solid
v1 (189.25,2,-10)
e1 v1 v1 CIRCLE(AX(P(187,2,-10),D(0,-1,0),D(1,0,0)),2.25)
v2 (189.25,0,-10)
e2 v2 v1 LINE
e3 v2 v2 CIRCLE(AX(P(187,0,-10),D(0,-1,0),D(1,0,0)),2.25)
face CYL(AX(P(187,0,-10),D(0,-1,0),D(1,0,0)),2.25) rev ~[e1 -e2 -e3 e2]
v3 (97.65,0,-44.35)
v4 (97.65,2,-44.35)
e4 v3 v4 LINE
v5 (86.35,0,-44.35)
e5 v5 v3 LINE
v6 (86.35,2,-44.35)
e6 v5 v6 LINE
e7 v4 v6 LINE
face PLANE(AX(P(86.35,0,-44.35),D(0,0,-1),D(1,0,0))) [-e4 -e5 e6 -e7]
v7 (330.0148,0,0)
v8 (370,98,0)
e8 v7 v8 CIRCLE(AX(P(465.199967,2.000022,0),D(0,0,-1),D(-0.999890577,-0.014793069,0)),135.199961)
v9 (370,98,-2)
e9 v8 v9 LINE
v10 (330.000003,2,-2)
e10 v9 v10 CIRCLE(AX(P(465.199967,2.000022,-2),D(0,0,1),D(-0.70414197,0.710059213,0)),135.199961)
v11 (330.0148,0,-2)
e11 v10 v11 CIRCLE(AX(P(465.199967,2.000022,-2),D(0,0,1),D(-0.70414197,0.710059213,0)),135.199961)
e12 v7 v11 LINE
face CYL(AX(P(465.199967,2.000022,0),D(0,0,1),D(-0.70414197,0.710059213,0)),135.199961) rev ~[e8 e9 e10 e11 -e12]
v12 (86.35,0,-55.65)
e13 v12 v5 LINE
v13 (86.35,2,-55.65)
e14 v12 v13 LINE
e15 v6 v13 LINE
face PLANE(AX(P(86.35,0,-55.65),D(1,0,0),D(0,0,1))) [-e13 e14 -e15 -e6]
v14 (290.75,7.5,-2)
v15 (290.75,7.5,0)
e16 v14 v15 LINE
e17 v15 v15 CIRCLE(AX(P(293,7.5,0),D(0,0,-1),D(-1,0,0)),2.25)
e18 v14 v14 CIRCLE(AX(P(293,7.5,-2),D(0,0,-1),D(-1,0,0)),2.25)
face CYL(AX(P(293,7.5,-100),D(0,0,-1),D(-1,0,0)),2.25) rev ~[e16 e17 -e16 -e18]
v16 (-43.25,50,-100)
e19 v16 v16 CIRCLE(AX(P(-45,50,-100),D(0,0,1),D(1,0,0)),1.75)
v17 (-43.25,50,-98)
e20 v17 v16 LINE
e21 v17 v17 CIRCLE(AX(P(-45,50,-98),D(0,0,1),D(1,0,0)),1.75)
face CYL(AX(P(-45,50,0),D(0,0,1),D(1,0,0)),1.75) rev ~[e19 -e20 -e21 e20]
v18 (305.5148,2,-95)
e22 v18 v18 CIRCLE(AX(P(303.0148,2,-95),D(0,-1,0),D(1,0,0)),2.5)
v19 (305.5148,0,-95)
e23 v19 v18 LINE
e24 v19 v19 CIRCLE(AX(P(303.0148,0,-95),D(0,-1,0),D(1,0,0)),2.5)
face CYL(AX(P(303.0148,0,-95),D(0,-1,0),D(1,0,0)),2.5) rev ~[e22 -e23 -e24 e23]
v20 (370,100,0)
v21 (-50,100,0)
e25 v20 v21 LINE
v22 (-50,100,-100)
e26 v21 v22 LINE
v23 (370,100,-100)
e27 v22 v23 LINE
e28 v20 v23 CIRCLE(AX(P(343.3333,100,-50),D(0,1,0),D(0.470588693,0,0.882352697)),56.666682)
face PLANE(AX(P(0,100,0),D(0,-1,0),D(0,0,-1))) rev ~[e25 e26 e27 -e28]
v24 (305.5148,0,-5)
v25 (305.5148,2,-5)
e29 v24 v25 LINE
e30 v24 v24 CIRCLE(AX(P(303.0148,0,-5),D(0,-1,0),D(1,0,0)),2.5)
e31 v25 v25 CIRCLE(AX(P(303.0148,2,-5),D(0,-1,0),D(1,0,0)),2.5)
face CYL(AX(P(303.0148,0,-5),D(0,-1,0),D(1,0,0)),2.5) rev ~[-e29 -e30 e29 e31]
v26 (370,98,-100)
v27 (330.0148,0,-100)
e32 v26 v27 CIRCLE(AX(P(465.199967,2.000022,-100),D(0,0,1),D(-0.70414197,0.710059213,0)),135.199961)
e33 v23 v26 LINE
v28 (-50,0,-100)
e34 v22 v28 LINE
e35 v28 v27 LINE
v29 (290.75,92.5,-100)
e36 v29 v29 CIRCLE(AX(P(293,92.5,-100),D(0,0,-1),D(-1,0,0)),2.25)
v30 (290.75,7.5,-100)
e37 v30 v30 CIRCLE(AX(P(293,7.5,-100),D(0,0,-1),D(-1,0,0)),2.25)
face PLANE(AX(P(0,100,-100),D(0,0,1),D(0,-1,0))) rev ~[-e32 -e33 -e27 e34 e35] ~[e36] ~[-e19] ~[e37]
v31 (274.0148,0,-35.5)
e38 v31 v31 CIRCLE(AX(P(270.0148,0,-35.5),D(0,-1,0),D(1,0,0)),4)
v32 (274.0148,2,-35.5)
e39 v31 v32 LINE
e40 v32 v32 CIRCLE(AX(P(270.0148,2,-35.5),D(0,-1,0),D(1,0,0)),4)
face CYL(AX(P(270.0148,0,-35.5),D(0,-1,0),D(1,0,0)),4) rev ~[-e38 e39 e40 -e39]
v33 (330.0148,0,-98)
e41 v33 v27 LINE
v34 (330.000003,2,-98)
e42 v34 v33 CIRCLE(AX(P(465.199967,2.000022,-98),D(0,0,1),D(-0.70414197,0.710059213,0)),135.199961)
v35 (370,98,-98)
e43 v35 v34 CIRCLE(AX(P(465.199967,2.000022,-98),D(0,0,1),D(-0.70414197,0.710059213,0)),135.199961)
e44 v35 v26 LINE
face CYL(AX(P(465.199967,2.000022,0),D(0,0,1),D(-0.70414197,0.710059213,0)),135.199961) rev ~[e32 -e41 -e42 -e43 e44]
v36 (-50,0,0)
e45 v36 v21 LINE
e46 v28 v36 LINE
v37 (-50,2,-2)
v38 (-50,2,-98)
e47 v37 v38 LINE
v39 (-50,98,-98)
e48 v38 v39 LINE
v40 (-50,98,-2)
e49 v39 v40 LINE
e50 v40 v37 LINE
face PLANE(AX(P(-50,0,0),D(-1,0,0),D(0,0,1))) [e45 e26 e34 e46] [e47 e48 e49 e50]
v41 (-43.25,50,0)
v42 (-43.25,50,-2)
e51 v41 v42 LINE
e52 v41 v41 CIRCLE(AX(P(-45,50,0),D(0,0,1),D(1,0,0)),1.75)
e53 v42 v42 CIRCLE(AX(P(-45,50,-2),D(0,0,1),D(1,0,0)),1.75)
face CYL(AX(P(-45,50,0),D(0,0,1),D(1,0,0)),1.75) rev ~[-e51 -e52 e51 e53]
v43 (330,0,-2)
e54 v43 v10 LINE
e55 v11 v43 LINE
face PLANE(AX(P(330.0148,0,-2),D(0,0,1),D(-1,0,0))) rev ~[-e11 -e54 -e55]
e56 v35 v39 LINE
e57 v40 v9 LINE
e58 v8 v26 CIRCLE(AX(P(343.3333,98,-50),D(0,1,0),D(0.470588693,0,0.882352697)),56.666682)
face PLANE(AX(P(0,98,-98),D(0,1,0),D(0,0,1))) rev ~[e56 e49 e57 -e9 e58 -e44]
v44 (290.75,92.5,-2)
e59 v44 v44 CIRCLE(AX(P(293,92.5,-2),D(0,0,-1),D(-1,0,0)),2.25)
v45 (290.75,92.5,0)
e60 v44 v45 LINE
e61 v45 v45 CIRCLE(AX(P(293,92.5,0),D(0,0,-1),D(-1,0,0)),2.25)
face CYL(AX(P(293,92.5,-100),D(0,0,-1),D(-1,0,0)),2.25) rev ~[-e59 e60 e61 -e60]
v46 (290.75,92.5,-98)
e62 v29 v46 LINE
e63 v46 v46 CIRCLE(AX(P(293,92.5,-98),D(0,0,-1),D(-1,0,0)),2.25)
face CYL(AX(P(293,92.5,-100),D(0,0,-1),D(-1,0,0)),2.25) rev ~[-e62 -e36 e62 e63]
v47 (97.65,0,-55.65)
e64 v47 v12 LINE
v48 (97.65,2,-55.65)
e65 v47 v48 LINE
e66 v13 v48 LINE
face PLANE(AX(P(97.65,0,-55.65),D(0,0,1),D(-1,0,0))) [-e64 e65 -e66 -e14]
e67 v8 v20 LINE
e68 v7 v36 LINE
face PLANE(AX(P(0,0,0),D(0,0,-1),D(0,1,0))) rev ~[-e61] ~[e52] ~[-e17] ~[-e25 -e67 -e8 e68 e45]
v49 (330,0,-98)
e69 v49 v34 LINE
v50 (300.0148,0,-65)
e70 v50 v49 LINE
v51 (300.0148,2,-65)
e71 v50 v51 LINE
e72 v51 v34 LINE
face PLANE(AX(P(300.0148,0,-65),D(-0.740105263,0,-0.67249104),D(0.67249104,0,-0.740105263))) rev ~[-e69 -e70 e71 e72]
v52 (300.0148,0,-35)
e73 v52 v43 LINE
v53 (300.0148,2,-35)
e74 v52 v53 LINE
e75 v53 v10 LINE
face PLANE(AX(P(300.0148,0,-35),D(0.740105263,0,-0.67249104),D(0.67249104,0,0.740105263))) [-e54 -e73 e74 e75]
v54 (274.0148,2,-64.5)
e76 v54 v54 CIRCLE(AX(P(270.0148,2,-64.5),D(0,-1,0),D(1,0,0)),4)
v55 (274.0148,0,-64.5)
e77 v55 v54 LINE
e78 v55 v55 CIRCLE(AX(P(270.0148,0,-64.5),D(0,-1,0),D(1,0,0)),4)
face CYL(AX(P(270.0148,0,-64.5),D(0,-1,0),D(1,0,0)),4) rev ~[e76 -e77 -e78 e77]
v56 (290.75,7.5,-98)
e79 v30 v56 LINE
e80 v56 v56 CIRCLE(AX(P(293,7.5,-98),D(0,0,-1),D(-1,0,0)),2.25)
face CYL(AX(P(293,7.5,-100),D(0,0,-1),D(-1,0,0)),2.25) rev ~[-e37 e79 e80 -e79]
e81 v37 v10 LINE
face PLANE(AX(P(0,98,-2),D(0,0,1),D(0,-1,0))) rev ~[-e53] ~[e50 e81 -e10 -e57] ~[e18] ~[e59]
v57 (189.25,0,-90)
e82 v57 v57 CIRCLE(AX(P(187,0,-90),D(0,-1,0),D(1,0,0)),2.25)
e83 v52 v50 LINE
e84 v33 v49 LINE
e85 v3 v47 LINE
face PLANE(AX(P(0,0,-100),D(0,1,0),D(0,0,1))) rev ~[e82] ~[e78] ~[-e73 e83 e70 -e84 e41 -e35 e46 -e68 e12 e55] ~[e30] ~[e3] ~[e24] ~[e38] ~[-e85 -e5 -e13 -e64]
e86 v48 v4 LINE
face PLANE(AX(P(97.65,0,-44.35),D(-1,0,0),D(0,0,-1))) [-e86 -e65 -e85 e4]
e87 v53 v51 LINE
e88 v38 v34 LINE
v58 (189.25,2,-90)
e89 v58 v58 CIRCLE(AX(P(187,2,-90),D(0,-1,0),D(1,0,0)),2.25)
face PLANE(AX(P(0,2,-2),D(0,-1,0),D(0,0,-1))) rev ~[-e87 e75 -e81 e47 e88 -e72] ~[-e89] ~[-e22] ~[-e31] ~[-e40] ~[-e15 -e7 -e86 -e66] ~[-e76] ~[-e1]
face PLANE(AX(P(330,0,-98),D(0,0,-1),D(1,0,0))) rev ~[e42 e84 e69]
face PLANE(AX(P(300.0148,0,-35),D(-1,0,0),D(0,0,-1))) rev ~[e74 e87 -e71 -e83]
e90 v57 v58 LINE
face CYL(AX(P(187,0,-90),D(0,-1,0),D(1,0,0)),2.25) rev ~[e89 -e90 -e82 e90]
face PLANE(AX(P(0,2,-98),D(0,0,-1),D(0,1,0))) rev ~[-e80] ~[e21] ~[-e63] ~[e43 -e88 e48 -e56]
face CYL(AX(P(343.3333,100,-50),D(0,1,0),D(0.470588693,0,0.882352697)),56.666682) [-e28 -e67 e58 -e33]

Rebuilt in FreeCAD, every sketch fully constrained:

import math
import FreeCAD as App
import Part
import Sketcher
from FreeCAD import Vector
Q = App.Units.Quantity

doc = App.newDocument("Part")
params = doc.addObject("Spreadsheet::Sheet", "Params")
for row, (alias, value) in enumerate([
    ("sketch1_width", "100 mm"),
    ("pad1_length", "370 mm"),
    ("sketch2_radius", "135.2 mm"),
    ("sketch2_height", "98 mm"),
    ("sketch3_height", "100 mm"),
    ("pad2_length", "2 mm"),
    ("sketch4_width", "11.3 mm"),
    ("pocket2_length", "5 mm"),
    ("sketch5_diameter", "4.5 mm"),
    ("pocket3_length", "10 mm"),
    ("sketch6_diameter", "4.5 mm"),
    ("sketch7_diameter", "5 mm"),
    ("sketch7_height", "30 mm"),
    ("sketch7_height2", "96 mm"),
    ("pocket5_length", "2 mm"),
    ("sketch8_width", "100 mm"),
    ("sketch8_width2", "96 mm"),
    ("pad3_length", "50 mm"),
    ("sketch9_diameter", "3.5 mm"),
    ("sketch10_diameter", "8 mm"),
    ("pocket7_length", "10 mm"),
], start=1):
    params.set(f"A{row}", alias)
    params.set(f"B{row}", "=" + value)
    params.setAlias(f"B{row}", alias)

body = doc.addObject("PartDesign::Body", "Body")

sketch1 = body.newObject("Sketcher::SketchObject", "Sketch")
sketch1.AttachmentSupport = (doc.getObject("YZ_Plane"), [""])
sketch1.MapMode = "FlatFace"
sketch1.addGeometry([
    Part.LineSegment(Vector(100, 0, 0), Vector(0, 0, 0)),
    Part.LineSegment(Vector(0, 0, 0), Vector(0, -100, 0)),
    Part.LineSegment(Vector(0, -100, 0), Vector(100, -100, 0)),
    Part.LineSegment(Vector(100, -100, 0), Vector(100, 0, 0)),
    Part.LineSegment(Vector(2, -2, 0), Vector(98, -2, 0)),
    Part.LineSegment(Vector(98, -2, 0), Vector(98, -98, 0)),
    Part.LineSegment(Vector(98, -98, 0), Vector(2, -98, 0)),
    Part.LineSegment(Vector(2, -98, 0), Vector(2, -2, 0)),
], False)
sketch1.addConstraint([
    Sketcher.Constraint("Coincident", 0, 2, 1, 1),
    Sketcher.Constraint("Coincident", 1, 2, 2, 1),
    Sketcher.Constraint("Coincident", 2, 2, 3, 1),
    Sketcher.Constraint("Coincident", 3, 2, 0, 1),
    Sketcher.Constraint("Coincident", 4, 2, 5, 1),
    Sketcher.Constraint("Coincident", 5, 2, 6, 1),
    Sketcher.Constraint("Coincident", 6, 2, 7, 1),
    Sketcher.Constraint("Coincident", 7, 2, 4, 1),
    Sketcher.Constraint("Horizontal", 0),
    Sketcher.Constraint("Vertical", 1),
    Sketcher.Constraint("Horizontal", 2),
    Sketcher.Constraint("Vertical", 3),
    Sketcher.Constraint("Horizontal", 4),
    Sketcher.Constraint("Vertical", 5),
    Sketcher.Constraint("Horizontal", 6),
    Sketcher.Constraint("Vertical", 7),
    Sketcher.Constraint("Coincident", 0, 2, -1, 1),
    Sketcher.Constraint("Equal", 2, 1),
    Sketcher.Constraint("Equal", 6, 5),
    Sketcher.Constraint("DistanceX", 0, 2, 0, 1, 100.0),
    Sketcher.Constraint("DistanceY", 4, 2, -1, 1, 2.0),
    Sketcher.Constraint("DistanceX", -1, 1, 6, 2, 2.0),
    Sketcher.Constraint("DistanceX", 4, 2, 3, 2, 2.0),
])
sketch1.setExpression("Constraints[19]", "Params.sketch1_width")
pad1 = body.newObject("PartDesign::Pad", "Pad")
pad1.Profile = sketch1
pad1.setExpression("Length", "Params.pad1_length")

sketch2 = body.newObject("Sketcher::SketchObject", "Sketch001")
sketch2.AttachmentSupport = (doc.getObject("XY_Plane"), [""])
sketch2.MapMode = "FlatFace"
sketch2.addGeometry([
    Part.ArcOfCircle(Part.Circle(Vector(465, 2, 0), Vector(0, 0, 1), 135), math.radians(135), math.radians(181)),
    Part.LineSegment(Vector(330, 0, 0), Vector(370, 0, 0)),
    Part.LineSegment(Vector(370, 0, 0), Vector(370, 98, 0)),
], False)
sketch2.addConstraint([
    Sketcher.Constraint("Coincident", 0, 2, 1, 1),
    Sketcher.Constraint("Coincident", 1, 2, 2, 1),
    Sketcher.Constraint("Coincident", 2, 2, 0, 1),
    Sketcher.Constraint("Horizontal", 1),
    Sketcher.Constraint("Vertical", 2),
    Sketcher.Constraint("PointOnObject", 0, 2, -1),
    Sketcher.Constraint("DistanceY", -1, 1, 0, 3, 2.0),
    Sketcher.Constraint("Radius", 0, 135.2),
    Sketcher.Constraint("DistanceY", 2, 1, 2, 2, 98.0),
    Sketcher.Constraint("DistanceX", -1, 1, 1, 2, 370.0),
])
sketch2.setExpression("Constraints[7]", "Params.sketch2_radius")
sketch2.setExpression("Constraints[8]", "Params.sketch2_height")
pocket1 = body.newObject("PartDesign::Pocket", "Pocket")
pocket1.Profile = sketch2
pocket1.Type = "ThroughAll"

sketch3 = body.newObject("Sketcher::SketchObject", "Sketch002")
sketch3.AttachmentSupport = (doc.getObject("XZ_Plane"), [""])
sketch3.MapMode = "FlatFace"
sketch3.AttachmentOffset = App.Placement(Vector(0, 0, -100), App.Rotation())
sketch3.addGeometry([
    Part.LineSegment(Vector(370, -100, 0), Vector(370, 0, 0)),
    Part.ArcOfCircle(Part.Circle(Vector(343, -50, 0), Vector(0, 0, 1), 57), math.radians(-62), math.radians(62)),
], False)
sketch3.addConstraint([
    Sketcher.Constraint("Coincident", 0, 1, 1, 1),
    Sketcher.Constraint("Coincident", 1, 2, 0, 2),
    Sketcher.Constraint("Vertical", 0),
    Sketcher.Constraint("PointOnObject", 1, 2, -1),
    Sketcher.Constraint("DistanceY", 0, 1, 0, 2, 100.0),
    Sketcher.Constraint("DistanceX", -1, 1, 0, 1, 370.0),
    Sketcher.Constraint("Radius", 1, 56.6667),
])
sketch3.setExpression("Constraints[4]", "Params.sketch3_height")
pad2 = body.newObject("PartDesign::Pad", "Pad001")
pad2.Profile = sketch3
pad2.setExpression("Length", "Params.pad2_length")

sketch4 = body.newObject("Sketcher::SketchObject", "Sketch003")
sketch4.AttachmentSupport = (doc.getObject("XZ_Plane"), [""])
sketch4.MapMode = "FlatFace"
sketch4.addGeometry([
    Part.LineSegment(Vector(98, -44, 0), Vector(86, -44, 0)),
    Part.LineSegment(Vector(86, -44, 0), Vector(86, -56, 0)),
    Part.LineSegment(Vector(86, -56, 0), Vector(98, -56, 0)),
    Part.LineSegment(Vector(98, -56, 0), Vector(98, -44, 0)),
], False)
sketch4.addConstraint([
    Sketcher.Constraint("Coincident", 0, 2, 1, 1),
    Sketcher.Constraint("Coincident", 1, 2, 2, 1),
    Sketcher.Constraint("Coincident", 2, 2, 3, 1),
    Sketcher.Constraint("Coincident", 3, 2, 0, 1),
    Sketcher.Constraint("Horizontal", 0),
    Sketcher.Constraint("Vertical", 1),
    Sketcher.Constraint("Horizontal", 2),
    Sketcher.Constraint("Vertical", 3),
    Sketcher.Constraint("Equal", 2, 1),
    Sketcher.Constraint("DistanceX", 0, 2, 0, 1, 11.3),
    Sketcher.Constraint("DistanceX", -1, 1, 0, 2, 86.35),
    Sketcher.Constraint("DistanceY", 0, 2, -1, 1, 44.35),
])
sketch4.setExpression("Constraints[9]", "Params.sketch4_width")
pocket2 = body.newObject("PartDesign::Pocket", "Pocket001")
pocket2.Profile = sketch4
pocket2.setExpression("Length", "Params.pocket2_length")

sketch5 = body.newObject("Sketcher::SketchObject", "Sketch004")
sketch5.AttachmentSupport = (doc.getObject("XZ_Plane"), [""])
sketch5.MapMode = "FlatFace"
sketch5.addGeometry([
    Part.Circle(Vector(187, -10, 0), Vector(0, 0, 1), 2.2),
    Part.Circle(Vector(187, -90, 0), Vector(0, 0, 1), 2.2),
], False)
sketch5.addConstraint([
    Sketcher.Constraint("Equal", 0, 1),
    Sketcher.Constraint("Vertical", 0, 3, 1, 3),
    Sketcher.Constraint("Diameter", 0, 4.5),
    Sketcher.Constraint("DistanceX", -1, 1, 0, 3, 187.0),
    Sketcher.Constraint("DistanceY", 0, 3, -1, 1, 10.0),
    Sketcher.Constraint("DistanceY", 1, 3, -1, 1, 90.0),
])
sketch5.setExpression("Constraints[2]", "Params.sketch5_diameter")
pocket3 = body.newObject("PartDesign::Pocket", "Pocket002")
pocket3.Profile = sketch5
pocket3.setExpression("Length", "Params.pocket3_length")

sketch6 = body.newObject("Sketcher::SketchObject", "Sketch005")
sketch6.AttachmentSupport = (doc.getObject("XY_Plane"), [""])
sketch6.MapMode = "FlatFace"
sketch6.AttachmentOffset = App.Placement(Vector(0, 0, -100), App.Rotation())
sketch6.addGeometry([
    Part.Circle(Vector(293, 7.5, 0), Vector(0, 0, 1), 2.2),
    Part.Circle(Vector(293, 92.5, 0), Vector(0, 0, 1), 2.2),
], False)
sketch6.addConstraint([
    Sketcher.Constraint("Equal", 0, 1),
    Sketcher.Constraint("Vertical", 0, 3, 1, 3),
    Sketcher.Constraint("Diameter", 0, 4.5),
    Sketcher.Constraint("DistanceX", -1, 1, 0, 3, 293.0),
    Sketcher.Constraint("DistanceY", 0, 3, 1, 3, 85.0),
    Sketcher.Constraint("DistanceY", -1, 1, 0, 3, 7.5),
])
sketch6.setExpression("Constraints[2]", "Params.sketch6_diameter")
pocket4 = body.newObject("PartDesign::Pocket", "Pocket003")
pocket4.Profile = sketch6
pocket4.Type = "ThroughAll"
pocket4.Reversed = True

sketch7 = body.newObject("Sketcher::SketchObject", "Sketch006")
sketch7.AttachmentSupport = (doc.getObject("XZ_Plane"), [""])
sketch7.MapMode = "FlatFace"
sketch7.addGeometry([
    Part.LineSegment(Vector(330, -98, 0), Vector(332.7, -98, 0)),
    Part.LineSegment(Vector(332.7, -98, 0), Vector(332.7, -2, 0)),
    Part.LineSegment(Vector(332.7, -2, 0), Vector(330, -2, 0)),
    Part.LineSegment(Vector(330, -2, 0), Vector(300, -35, 0)),
    Part.LineSegment(Vector(300, -35, 0), Vector(300, -65, 0)),
    Part.LineSegment(Vector(300, -65, 0), Vector(330, -98, 0)),
    Part.Circle(Vector(303, -95, 0), Vector(0, 0, 1), 2.5),
    Part.Circle(Vector(303, -5, 0), Vector(0, 0, 1), 2.5),
], False)
sketch7.addConstraint([
    Sketcher.Constraint("Coincident", 0, 2, 1, 1),
    Sketcher.Constraint("Coincident", 1, 2, 2, 1),
    Sketcher.Constraint("Coincident", 2, 2, 3, 1),
    Sketcher.Constraint("Coincident", 3, 2, 4, 1),
    Sketcher.Constraint("Coincident", 4, 2, 5, 1),
    Sketcher.Constraint("Coincident", 5, 2, 0, 1),
    Sketcher.Constraint("Horizontal", 0),
    Sketcher.Constraint("Vertical", 1),
    Sketcher.Constraint("Horizontal", 2),
    Sketcher.Constraint("Vertical", 4),
    Sketcher.Constraint("Equal", 6, 7),
    Sketcher.Constraint("Vertical", 6, 3, 7, 3),
    Sketcher.Constraint("Vertical", 2, 2, 5, 2),
    Sketcher.Constraint("Equal", 3, 5),
    Sketcher.Constraint("Diameter", 6, 5.0),
    Sketcher.Constraint("DistanceY", 4, 2, 4, 1, 30.0),
    Sketcher.Constraint("DistanceY", 7, 3, -1, 1, 5.0),
    Sketcher.Constraint("DistanceY", 3, 2, 7, 3, 30.0),
    Sketcher.Constraint("DistanceY", 6, 3, 4, 2, 30.0),
    Sketcher.Constraint("DistanceY", 1, 1, 1, 2, 96.0),
    Sketcher.Constraint("DistanceX", -1, 1, 2, 2, 330.0),
    Sketcher.Constraint("DistanceX", 3, 2, 7, 3, 3.0),
    Sketcher.Constraint("Angle", 3, Q("-132.2596 deg")),
    Sketcher.Constraint("DistanceX", 0, 1, 0, 2, 2.684),
])
sketch7.setExpression("Constraints[14]", "Params.sketch7_diameter")
sketch7.setExpression("Constraints[15]", "Params.sketch7_height")
sketch7.setExpression("Constraints[19]", "Params.sketch7_height2")
pocket5 = body.newObject("PartDesign::Pocket", "Pocket004")
pocket5.Profile = sketch7
pocket5.setExpression("Length", "Params.pocket5_length")

sketch8 = body.newObject("Sketcher::SketchObject", "Sketch007")
sketch8.AttachmentSupport = (doc.getObject("YZ_Plane"), [""])
sketch8.MapMode = "FlatFace"
sketch8.addGeometry([
    Part.LineSegment(Vector(0, -100, 0), Vector(0, 0, 0)),
    Part.LineSegment(Vector(0, 0, 0), Vector(100, 0, 0)),
    Part.LineSegment(Vector(100, 0, 0), Vector(100, -100, 0)),
    Part.LineSegment(Vector(100, -100, 0), Vector(0, -100, 0)),
    Part.LineSegment(Vector(2, -98, 0), Vector(98, -98, 0)),
    Part.LineSegment(Vector(98, -98, 0), Vector(98, -2, 0)),
    Part.LineSegment(Vector(98, -2, 0), Vector(2, -2, 0)),
    Part.LineSegment(Vector(2, -2, 0), Vector(2, -98, 0)),
], False)
sketch8.addConstraint([
    Sketcher.Constraint("Coincident", 0, 2, 1, 1),
    Sketcher.Constraint("Coincident", 1, 2, 2, 1),
    Sketcher.Constraint("Coincident", 2, 2, 3, 1),
    Sketcher.Constraint("Coincident", 3, 2, 0, 1),
    Sketcher.Constraint("Coincident", 4, 2, 5, 1),
    Sketcher.Constraint("Coincident", 5, 2, 6, 1),
    Sketcher.Constraint("Coincident", 6, 2, 7, 1),
    Sketcher.Constraint("Coincident", 7, 2, 4, 1),
    Sketcher.Constraint("Vertical", 0),
    Sketcher.Constraint("Horizontal", 1),
    Sketcher.Constraint("Vertical", 2),
    Sketcher.Constraint("Horizontal", 3),
    Sketcher.Constraint("Horizontal", 4),
    Sketcher.Constraint("Vertical", 5),
    Sketcher.Constraint("Horizontal", 6),
    Sketcher.Constraint("Vertical", 7),
    Sketcher.Constraint("Coincident", 0, 2, -1, 1),
    Sketcher.Constraint("Equal", 3, 0),
    Sketcher.Constraint("Equal", 6, 5),
    Sketcher.Constraint("DistanceX", 1, 1, 1, 2, 100.0),
    Sketcher.Constraint("DistanceX", 4, 1, 4, 2, 96.0),
    Sketcher.Constraint("DistanceX", -1, 1, 4, 2, 98.0),
    Sketcher.Constraint("DistanceY", 4, 2, -1, 1, 98.0),
])
sketch8.setExpression("Constraints[19]", "Params.sketch8_width")
sketch8.setExpression("Constraints[20]", "Params.sketch8_width2")
pad3 = body.newObject("PartDesign::Pad", "Pad002")
pad3.Profile = sketch8
pad3.setExpression("Length", "Params.pad3_length")
pad3.Reversed = True

sketch9 = body.newObject("Sketcher::SketchObject", "Sketch008")
sketch9.AttachmentSupport = (doc.getObject("XY_Plane"), [""])
sketch9.MapMode = "FlatFace"
sketch9.addGeometry(Part.Circle(Vector(-45, 50, 0), Vector(0, 0, 1), 1.8), False)
sketch9.addConstraint([
    Sketcher.Constraint("Diameter", 0, 3.5),
    Sketcher.Constraint("DistanceY", -1, 1, 0, 3, 50.0),
    Sketcher.Constraint("DistanceX", 0, 3, -1, 1, 45.0),
])
sketch9.setExpression("Constraints[0]", "Params.sketch9_diameter")
pocket6 = body.newObject("PartDesign::Pocket", "Pocket005")
pocket6.Profile = sketch9
pocket6.Type = "ThroughAll"

sketch10 = body.newObject("Sketcher::SketchObject", "Sketch009")
sketch10.AttachmentSupport = (doc.getObject("XZ_Plane"), [""])
sketch10.MapMode = "FlatFace"
sketch10.addGeometry([
    Part.Circle(Vector(270, -35.5, 0), Vector(0, 0, 1), 4),
    Part.Circle(Vector(270, -64.5, 0), Vector(0, 0, 1), 4),
], False)
sketch10.addConstraint([
    Sketcher.Constraint("Equal", 0, 1),
    Sketcher.Constraint("Vertical", 0, 3, 1, 3),
    Sketcher.Constraint("Diameter", 0, 8.0),
    Sketcher.Constraint("DistanceY", 1, 3, 0, 3, 29.0),
    Sketcher.Constraint("DistanceY", 0, 3, -1, 1, 35.5),
    Sketcher.Constraint("DistanceX", -1, 1, 0, 3, 270.0148),
])
sketch10.setExpression("Constraints[2]", "Params.sketch10_diameter")
pocket7 = body.newObject("PartDesign::Pocket", "Pocket006")
pocket7.Profile = sketch10
pocket7.setExpression("Length", "Params.pocket7_length")

doc.recompute()
